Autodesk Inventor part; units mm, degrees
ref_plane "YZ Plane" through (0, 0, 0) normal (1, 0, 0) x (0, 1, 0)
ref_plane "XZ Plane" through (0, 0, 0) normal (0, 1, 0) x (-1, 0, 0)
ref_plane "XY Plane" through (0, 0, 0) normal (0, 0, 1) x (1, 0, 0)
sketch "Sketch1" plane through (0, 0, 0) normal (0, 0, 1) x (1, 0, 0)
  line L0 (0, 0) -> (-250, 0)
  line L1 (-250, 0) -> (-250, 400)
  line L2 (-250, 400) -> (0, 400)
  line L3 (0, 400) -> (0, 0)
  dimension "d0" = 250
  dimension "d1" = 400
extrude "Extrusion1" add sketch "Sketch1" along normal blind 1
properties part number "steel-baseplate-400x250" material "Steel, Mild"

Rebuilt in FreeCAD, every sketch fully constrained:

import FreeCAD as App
import Part
import Sketcher
from FreeCAD import Vector


def add_polygon(sketch, points):
    """Adds a closed chain of lines whose ends are joined by coincident constraints."""
    first, n = sketch.GeometryCount, len(points)
    for a, b in zip(points, points[1:] + points[:1]):
        sketch.addGeometry(Part.LineSegment(App.Vector(*a, 0), App.Vector(*b, 0)), False)
    for i in range(n):
        sketch.addConstraint(Sketcher.Constraint("Coincident", first + i, 2, first + (i + 1) % n, 1))

doc = App.newDocument("Part")
body = doc.addObject("PartDesign::Body", "Body")

# Sketch on XY plane
sketch1 = body.newObject("Sketcher::SketchObject", "Sketch")
sketch1.AttachmentSupport = (doc.getObject("XY_Plane"), [""])
sketch1.MapMode = "FlatFace"
add_polygon(sketch1, [(-250, 0), (0, 0), (0, 400), (-250, 400)])  # lines 0-3
sketch1.addConstraint([
    Sketcher.Constraint("Horizontal", 0),
    Sketcher.Constraint("Vertical", 1),
    Sketcher.Constraint("Horizontal", 2),
    Sketcher.Constraint("Vertical", 3),
    Sketcher.Constraint("Coincident", 0, 2, -1, 1),
    Sketcher.Constraint("DistanceX", 0, 1, 0, 2, 250.0),
    Sketcher.Constraint("DistanceY", 1, 1, 1, 2, 400.0),
])
pad1 = body.newObject("PartDesign::Pad", "Pad")
pad1.Profile = sketch1
pad1.Length = 1

doc.recompute()
